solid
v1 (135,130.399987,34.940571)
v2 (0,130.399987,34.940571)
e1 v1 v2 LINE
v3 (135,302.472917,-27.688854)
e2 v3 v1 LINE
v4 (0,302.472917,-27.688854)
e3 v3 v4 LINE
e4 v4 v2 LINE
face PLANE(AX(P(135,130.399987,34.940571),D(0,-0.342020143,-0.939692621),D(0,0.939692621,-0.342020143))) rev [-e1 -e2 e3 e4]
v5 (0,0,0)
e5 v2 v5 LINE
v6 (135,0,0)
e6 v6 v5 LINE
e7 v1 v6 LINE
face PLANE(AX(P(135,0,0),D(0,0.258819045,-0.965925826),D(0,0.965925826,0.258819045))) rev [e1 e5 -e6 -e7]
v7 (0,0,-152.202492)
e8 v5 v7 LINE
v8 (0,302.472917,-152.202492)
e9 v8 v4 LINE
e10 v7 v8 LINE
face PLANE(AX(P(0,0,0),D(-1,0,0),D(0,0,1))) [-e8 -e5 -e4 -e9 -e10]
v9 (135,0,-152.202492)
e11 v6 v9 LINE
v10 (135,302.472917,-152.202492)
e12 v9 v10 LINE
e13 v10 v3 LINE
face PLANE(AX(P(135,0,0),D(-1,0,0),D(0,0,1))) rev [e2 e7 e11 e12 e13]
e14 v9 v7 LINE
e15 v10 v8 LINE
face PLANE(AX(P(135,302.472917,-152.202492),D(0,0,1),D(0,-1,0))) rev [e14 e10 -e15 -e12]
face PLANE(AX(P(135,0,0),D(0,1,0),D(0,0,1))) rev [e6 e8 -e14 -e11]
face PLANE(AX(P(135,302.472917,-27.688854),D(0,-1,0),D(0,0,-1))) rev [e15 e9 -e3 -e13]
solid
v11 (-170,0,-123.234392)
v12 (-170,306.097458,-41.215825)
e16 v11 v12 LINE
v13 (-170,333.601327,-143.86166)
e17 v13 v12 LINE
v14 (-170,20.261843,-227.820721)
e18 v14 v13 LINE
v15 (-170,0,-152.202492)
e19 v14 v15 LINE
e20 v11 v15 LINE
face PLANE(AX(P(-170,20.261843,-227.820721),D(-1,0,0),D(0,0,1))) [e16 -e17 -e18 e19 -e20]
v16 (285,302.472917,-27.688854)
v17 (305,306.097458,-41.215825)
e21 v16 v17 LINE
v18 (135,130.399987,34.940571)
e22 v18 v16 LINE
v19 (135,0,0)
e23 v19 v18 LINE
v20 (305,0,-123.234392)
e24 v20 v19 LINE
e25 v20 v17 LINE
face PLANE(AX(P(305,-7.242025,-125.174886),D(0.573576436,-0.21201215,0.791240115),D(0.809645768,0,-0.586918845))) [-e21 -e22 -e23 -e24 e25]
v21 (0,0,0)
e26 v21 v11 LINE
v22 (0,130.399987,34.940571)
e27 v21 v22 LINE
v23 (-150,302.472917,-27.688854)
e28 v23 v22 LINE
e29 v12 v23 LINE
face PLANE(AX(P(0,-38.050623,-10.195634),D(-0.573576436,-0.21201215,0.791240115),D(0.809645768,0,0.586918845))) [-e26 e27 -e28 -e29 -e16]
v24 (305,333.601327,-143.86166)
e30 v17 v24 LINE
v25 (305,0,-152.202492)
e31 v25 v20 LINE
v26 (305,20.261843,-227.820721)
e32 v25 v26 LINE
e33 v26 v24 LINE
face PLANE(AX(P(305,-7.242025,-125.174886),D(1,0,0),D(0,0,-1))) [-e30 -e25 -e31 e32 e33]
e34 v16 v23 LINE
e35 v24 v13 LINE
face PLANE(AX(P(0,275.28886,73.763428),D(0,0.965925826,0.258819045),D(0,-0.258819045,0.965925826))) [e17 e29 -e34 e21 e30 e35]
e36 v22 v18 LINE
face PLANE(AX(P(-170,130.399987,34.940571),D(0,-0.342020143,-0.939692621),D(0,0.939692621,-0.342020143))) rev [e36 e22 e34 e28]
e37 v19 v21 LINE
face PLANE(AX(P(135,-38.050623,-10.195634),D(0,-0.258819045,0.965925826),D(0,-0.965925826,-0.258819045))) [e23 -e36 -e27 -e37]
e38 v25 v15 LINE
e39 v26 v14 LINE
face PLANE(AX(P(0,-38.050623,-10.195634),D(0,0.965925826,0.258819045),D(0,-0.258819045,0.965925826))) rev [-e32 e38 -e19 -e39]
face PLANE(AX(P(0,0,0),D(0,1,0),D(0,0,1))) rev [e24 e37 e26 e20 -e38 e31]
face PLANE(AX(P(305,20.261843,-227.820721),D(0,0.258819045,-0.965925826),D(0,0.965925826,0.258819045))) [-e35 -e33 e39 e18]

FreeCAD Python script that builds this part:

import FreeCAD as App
import Part
import Sketcher
Q = App.Units.Quantity


def add_polygon(sketch, points):
    """Adds a closed chain of lines whose ends are joined by coincident constraints."""
    first, n = sketch.GeometryCount, len(points)
    for a, b in zip(points, points[1:] + points[:1]):
        sketch.addGeometry(Part.LineSegment(App.Vector(*a, 0), App.Vector(*b, 0)), False)
    for i in range(n):
        sketch.addConstraint(Sketcher.Constraint("Coincident", first + i, 2, first + (i + 1) % n, 1))

doc = App.newDocument("Part")
params = doc.addObject("Spreadsheet::Sheet", "Params")
for row, (alias, value) in enumerate([
    ("sketch1_length", "135 mm"),
    ("pad1_length", "135 mm"),
    ("sketch2_width", "475 mm"),
    ("sketch2_width2", "135 mm"),
    ("pad2_length", "150 mm"),
    ("pad2_length2", "174.392904 mm"),
], start=1):
    params.set(f"A{row}", alias)
    params.set(f"B{row}", "=" + value)
    params.setAlias(f"B{row}", alias)

body = doc.addObject("PartDesign::Body", "Body")

# Sketch on YZ plane
sketch1 = body.newObject("Sketcher::SketchObject", "Sketch")
sketch1.AttachmentSupport = (doc.getObject("YZ_Plane"), [""])
sketch1.MapMode = "FlatFace"
add_polygon(sketch1, [(130, 35), (0, 0), (0, -152), (302, -152), (302, -28)])  # lines 0-4
sketch1.addConstraint(Sketcher.Constraint("Vertical", 1))
sketch1.addConstraint(Sketcher.Constraint("Horizontal", 2))
sketch1.addConstraint(Sketcher.Constraint("Vertical", 3))
sketch1.addConstraint(Sketcher.Constraint("Coincident", 0, 2, -1, 1))
sketch1.addConstraint(Sketcher.Constraint("Angle", 0, Q("-165 deg")))
sketch1.addConstraint(Sketcher.Constraint("Angle", 4, Q("160 deg")))
sketch1.addConstraint(Sketcher.Constraint("Distance", 0, 135.0))
sketch1.addConstraint(Sketcher.Constraint("DistanceY", 1, 2, 1, 1, 152.202492))
sketch1.addConstraint(Sketcher.Constraint("Distance", 4, 183.116188))
sketch1.setExpression("Constraints[11]", "Params.sketch1_length")
pad1 = body.newObject("PartDesign::Pad", "Pad")
pad1.Profile = sketch1
pad1.setExpression("Length", "Params.pad1_length")
body2 = doc.addObject("PartDesign::Body", "Body001")

# Sketch on an angled plane
sketch2 = body2.newObject("Sketcher::SketchObject", "Sketch001")
sketch2.Placement = App.Placement(App.Vector(0, 130.399986, 34.940571), App.Rotation(App.Vector(-1, 0, 0), App.Vector(0, -0.258819045, 0.965925826), App.Vector(0, 0.965925826, 0.258819045), "ZXY"))
add_polygon(sketch2, [(-135, 0), (-305, -119), (-305, -225), (170, -225), (170, -119), (0, 0)])  # lines 0-5
sketch2.addConstraint(Sketcher.Constraint("Vertical", 1))
sketch2.addConstraint(Sketcher.Constraint("Horizontal", 2))
sketch2.addConstraint(Sketcher.Constraint("Vertical", 3))
sketch2.addConstraint(Sketcher.Constraint("Horizontal", 5))
sketch2.addConstraint(Sketcher.Constraint("Coincident", 4, 2, -1, 1))
sketch2.addConstraint(Sketcher.Constraint("Horizontal", 0, 2, 3, 2))
sketch2.addConstraint(Sketcher.Constraint("Equal", 0, 4))
sketch2.addConstraint(Sketcher.Constraint("DistanceX", 2, 1, 2, 2, 475.0))
sketch2.addConstraint(Sketcher.Constraint("DistanceX", 5, 2, 5, 1, 135.0))
sketch2.addConstraint(Sketcher.Constraint("Angle", 0, Q("-145 deg")))
sketch2.addConstraint(Sketcher.Constraint("DistanceY", 1, 2, 1, 1, 106.266788))
sketch2.setExpression("Constraints[13]", "Params.sketch2_width")
sketch2.setExpression("Constraints[14]", "Params.sketch2_width2")
pad2 = body2.newObject("PartDesign::Pad", "Pad001")
pad2.Profile = sketch2
pad2.Type = "TwoLengths"
pad2.setExpression("Length", "Params.pad2_length")
pad2.setExpression("Length2", "Params.pad2_length2")

# Sketch on XZ plane
sketch3 = body2.newObject("Sketcher::SketchObject", "Sketch002")
sketch3.AttachmentSupport = (doc.getObject("XZ_Plane001"), [""])
sketch3.MapMode = "FlatFace"
add_polygon(sketch3, [(-188, -249), (-188, 74), (349, 74), (349, -249)])  # lines 0-3
sketch3.addConstraint(Sketcher.Constraint("Vertical", 0))
sketch3.addConstraint(Sketcher.Constraint("Horizontal", 1))
sketch3.addConstraint(Sketcher.Constraint("Vertical", 2))
sketch3.addConstraint(Sketcher.Constraint("Horizontal", 3))
sketch3.addConstraint(Sketcher.Constraint("DistanceX", 1, 1, 1, 2, 537.073181))
sketch3.addConstraint(Sketcher.Constraint("DistanceY", 0, 1, 0, 2, 322.774913))
sketch3.addConstraint(Sketcher.Constraint("DistanceY", -1, 1, 0, 2, 73.669362))
sketch3.addConstraint(Sketcher.Constraint("DistanceX", 0, 2, -1, 1, 187.761477))
pocket1 = body2.newObject("PartDesign::Pocket", "Pocket")
pocket1.Profile = sketch3
pocket1.Type = "ThroughAll"
pocket1.Reversed = True

# Sketch on YZ plane
sketch4 = body2.newObject("Sketcher::SketchObject", "Sketch003")
sketch4.AttachmentSupport = (doc.getObject("YZ_Plane001"), [""])
sketch4.MapMode = "FlatFace"
add_polygon(sketch4, [(130, 35), (324, -36), (302, 81)])  # lines 0-2
sketch4.addConstraint(Sketcher.Constraint("Angle", 0, Q("-20 deg")))
sketch4.addConstraint(Sketcher.Constraint("Angle", 2, Q("-165 deg")))
sketch4.addConstraint(Sketcher.Constraint("Distance", 1, 118.580109))
sketch4.addConstraint(Sketcher.Constraint("Distance", 2, 177.933889))
sketch4.addConstraint(Sketcher.Constraint("DistanceY", -1, 1, 1, 2, 80.99325))
sketch4.addConstraint(Sketcher.Constraint("DistanceX", -1, 1, 0, 2, 324.099723))
pocket2 = body2.newObject("PartDesign::Pocket", "Pocket001")
pocket2.Profile = sketch4
pocket2.Type = "ThroughAll"
pocket2.Midplane = True

doc.recompute()
